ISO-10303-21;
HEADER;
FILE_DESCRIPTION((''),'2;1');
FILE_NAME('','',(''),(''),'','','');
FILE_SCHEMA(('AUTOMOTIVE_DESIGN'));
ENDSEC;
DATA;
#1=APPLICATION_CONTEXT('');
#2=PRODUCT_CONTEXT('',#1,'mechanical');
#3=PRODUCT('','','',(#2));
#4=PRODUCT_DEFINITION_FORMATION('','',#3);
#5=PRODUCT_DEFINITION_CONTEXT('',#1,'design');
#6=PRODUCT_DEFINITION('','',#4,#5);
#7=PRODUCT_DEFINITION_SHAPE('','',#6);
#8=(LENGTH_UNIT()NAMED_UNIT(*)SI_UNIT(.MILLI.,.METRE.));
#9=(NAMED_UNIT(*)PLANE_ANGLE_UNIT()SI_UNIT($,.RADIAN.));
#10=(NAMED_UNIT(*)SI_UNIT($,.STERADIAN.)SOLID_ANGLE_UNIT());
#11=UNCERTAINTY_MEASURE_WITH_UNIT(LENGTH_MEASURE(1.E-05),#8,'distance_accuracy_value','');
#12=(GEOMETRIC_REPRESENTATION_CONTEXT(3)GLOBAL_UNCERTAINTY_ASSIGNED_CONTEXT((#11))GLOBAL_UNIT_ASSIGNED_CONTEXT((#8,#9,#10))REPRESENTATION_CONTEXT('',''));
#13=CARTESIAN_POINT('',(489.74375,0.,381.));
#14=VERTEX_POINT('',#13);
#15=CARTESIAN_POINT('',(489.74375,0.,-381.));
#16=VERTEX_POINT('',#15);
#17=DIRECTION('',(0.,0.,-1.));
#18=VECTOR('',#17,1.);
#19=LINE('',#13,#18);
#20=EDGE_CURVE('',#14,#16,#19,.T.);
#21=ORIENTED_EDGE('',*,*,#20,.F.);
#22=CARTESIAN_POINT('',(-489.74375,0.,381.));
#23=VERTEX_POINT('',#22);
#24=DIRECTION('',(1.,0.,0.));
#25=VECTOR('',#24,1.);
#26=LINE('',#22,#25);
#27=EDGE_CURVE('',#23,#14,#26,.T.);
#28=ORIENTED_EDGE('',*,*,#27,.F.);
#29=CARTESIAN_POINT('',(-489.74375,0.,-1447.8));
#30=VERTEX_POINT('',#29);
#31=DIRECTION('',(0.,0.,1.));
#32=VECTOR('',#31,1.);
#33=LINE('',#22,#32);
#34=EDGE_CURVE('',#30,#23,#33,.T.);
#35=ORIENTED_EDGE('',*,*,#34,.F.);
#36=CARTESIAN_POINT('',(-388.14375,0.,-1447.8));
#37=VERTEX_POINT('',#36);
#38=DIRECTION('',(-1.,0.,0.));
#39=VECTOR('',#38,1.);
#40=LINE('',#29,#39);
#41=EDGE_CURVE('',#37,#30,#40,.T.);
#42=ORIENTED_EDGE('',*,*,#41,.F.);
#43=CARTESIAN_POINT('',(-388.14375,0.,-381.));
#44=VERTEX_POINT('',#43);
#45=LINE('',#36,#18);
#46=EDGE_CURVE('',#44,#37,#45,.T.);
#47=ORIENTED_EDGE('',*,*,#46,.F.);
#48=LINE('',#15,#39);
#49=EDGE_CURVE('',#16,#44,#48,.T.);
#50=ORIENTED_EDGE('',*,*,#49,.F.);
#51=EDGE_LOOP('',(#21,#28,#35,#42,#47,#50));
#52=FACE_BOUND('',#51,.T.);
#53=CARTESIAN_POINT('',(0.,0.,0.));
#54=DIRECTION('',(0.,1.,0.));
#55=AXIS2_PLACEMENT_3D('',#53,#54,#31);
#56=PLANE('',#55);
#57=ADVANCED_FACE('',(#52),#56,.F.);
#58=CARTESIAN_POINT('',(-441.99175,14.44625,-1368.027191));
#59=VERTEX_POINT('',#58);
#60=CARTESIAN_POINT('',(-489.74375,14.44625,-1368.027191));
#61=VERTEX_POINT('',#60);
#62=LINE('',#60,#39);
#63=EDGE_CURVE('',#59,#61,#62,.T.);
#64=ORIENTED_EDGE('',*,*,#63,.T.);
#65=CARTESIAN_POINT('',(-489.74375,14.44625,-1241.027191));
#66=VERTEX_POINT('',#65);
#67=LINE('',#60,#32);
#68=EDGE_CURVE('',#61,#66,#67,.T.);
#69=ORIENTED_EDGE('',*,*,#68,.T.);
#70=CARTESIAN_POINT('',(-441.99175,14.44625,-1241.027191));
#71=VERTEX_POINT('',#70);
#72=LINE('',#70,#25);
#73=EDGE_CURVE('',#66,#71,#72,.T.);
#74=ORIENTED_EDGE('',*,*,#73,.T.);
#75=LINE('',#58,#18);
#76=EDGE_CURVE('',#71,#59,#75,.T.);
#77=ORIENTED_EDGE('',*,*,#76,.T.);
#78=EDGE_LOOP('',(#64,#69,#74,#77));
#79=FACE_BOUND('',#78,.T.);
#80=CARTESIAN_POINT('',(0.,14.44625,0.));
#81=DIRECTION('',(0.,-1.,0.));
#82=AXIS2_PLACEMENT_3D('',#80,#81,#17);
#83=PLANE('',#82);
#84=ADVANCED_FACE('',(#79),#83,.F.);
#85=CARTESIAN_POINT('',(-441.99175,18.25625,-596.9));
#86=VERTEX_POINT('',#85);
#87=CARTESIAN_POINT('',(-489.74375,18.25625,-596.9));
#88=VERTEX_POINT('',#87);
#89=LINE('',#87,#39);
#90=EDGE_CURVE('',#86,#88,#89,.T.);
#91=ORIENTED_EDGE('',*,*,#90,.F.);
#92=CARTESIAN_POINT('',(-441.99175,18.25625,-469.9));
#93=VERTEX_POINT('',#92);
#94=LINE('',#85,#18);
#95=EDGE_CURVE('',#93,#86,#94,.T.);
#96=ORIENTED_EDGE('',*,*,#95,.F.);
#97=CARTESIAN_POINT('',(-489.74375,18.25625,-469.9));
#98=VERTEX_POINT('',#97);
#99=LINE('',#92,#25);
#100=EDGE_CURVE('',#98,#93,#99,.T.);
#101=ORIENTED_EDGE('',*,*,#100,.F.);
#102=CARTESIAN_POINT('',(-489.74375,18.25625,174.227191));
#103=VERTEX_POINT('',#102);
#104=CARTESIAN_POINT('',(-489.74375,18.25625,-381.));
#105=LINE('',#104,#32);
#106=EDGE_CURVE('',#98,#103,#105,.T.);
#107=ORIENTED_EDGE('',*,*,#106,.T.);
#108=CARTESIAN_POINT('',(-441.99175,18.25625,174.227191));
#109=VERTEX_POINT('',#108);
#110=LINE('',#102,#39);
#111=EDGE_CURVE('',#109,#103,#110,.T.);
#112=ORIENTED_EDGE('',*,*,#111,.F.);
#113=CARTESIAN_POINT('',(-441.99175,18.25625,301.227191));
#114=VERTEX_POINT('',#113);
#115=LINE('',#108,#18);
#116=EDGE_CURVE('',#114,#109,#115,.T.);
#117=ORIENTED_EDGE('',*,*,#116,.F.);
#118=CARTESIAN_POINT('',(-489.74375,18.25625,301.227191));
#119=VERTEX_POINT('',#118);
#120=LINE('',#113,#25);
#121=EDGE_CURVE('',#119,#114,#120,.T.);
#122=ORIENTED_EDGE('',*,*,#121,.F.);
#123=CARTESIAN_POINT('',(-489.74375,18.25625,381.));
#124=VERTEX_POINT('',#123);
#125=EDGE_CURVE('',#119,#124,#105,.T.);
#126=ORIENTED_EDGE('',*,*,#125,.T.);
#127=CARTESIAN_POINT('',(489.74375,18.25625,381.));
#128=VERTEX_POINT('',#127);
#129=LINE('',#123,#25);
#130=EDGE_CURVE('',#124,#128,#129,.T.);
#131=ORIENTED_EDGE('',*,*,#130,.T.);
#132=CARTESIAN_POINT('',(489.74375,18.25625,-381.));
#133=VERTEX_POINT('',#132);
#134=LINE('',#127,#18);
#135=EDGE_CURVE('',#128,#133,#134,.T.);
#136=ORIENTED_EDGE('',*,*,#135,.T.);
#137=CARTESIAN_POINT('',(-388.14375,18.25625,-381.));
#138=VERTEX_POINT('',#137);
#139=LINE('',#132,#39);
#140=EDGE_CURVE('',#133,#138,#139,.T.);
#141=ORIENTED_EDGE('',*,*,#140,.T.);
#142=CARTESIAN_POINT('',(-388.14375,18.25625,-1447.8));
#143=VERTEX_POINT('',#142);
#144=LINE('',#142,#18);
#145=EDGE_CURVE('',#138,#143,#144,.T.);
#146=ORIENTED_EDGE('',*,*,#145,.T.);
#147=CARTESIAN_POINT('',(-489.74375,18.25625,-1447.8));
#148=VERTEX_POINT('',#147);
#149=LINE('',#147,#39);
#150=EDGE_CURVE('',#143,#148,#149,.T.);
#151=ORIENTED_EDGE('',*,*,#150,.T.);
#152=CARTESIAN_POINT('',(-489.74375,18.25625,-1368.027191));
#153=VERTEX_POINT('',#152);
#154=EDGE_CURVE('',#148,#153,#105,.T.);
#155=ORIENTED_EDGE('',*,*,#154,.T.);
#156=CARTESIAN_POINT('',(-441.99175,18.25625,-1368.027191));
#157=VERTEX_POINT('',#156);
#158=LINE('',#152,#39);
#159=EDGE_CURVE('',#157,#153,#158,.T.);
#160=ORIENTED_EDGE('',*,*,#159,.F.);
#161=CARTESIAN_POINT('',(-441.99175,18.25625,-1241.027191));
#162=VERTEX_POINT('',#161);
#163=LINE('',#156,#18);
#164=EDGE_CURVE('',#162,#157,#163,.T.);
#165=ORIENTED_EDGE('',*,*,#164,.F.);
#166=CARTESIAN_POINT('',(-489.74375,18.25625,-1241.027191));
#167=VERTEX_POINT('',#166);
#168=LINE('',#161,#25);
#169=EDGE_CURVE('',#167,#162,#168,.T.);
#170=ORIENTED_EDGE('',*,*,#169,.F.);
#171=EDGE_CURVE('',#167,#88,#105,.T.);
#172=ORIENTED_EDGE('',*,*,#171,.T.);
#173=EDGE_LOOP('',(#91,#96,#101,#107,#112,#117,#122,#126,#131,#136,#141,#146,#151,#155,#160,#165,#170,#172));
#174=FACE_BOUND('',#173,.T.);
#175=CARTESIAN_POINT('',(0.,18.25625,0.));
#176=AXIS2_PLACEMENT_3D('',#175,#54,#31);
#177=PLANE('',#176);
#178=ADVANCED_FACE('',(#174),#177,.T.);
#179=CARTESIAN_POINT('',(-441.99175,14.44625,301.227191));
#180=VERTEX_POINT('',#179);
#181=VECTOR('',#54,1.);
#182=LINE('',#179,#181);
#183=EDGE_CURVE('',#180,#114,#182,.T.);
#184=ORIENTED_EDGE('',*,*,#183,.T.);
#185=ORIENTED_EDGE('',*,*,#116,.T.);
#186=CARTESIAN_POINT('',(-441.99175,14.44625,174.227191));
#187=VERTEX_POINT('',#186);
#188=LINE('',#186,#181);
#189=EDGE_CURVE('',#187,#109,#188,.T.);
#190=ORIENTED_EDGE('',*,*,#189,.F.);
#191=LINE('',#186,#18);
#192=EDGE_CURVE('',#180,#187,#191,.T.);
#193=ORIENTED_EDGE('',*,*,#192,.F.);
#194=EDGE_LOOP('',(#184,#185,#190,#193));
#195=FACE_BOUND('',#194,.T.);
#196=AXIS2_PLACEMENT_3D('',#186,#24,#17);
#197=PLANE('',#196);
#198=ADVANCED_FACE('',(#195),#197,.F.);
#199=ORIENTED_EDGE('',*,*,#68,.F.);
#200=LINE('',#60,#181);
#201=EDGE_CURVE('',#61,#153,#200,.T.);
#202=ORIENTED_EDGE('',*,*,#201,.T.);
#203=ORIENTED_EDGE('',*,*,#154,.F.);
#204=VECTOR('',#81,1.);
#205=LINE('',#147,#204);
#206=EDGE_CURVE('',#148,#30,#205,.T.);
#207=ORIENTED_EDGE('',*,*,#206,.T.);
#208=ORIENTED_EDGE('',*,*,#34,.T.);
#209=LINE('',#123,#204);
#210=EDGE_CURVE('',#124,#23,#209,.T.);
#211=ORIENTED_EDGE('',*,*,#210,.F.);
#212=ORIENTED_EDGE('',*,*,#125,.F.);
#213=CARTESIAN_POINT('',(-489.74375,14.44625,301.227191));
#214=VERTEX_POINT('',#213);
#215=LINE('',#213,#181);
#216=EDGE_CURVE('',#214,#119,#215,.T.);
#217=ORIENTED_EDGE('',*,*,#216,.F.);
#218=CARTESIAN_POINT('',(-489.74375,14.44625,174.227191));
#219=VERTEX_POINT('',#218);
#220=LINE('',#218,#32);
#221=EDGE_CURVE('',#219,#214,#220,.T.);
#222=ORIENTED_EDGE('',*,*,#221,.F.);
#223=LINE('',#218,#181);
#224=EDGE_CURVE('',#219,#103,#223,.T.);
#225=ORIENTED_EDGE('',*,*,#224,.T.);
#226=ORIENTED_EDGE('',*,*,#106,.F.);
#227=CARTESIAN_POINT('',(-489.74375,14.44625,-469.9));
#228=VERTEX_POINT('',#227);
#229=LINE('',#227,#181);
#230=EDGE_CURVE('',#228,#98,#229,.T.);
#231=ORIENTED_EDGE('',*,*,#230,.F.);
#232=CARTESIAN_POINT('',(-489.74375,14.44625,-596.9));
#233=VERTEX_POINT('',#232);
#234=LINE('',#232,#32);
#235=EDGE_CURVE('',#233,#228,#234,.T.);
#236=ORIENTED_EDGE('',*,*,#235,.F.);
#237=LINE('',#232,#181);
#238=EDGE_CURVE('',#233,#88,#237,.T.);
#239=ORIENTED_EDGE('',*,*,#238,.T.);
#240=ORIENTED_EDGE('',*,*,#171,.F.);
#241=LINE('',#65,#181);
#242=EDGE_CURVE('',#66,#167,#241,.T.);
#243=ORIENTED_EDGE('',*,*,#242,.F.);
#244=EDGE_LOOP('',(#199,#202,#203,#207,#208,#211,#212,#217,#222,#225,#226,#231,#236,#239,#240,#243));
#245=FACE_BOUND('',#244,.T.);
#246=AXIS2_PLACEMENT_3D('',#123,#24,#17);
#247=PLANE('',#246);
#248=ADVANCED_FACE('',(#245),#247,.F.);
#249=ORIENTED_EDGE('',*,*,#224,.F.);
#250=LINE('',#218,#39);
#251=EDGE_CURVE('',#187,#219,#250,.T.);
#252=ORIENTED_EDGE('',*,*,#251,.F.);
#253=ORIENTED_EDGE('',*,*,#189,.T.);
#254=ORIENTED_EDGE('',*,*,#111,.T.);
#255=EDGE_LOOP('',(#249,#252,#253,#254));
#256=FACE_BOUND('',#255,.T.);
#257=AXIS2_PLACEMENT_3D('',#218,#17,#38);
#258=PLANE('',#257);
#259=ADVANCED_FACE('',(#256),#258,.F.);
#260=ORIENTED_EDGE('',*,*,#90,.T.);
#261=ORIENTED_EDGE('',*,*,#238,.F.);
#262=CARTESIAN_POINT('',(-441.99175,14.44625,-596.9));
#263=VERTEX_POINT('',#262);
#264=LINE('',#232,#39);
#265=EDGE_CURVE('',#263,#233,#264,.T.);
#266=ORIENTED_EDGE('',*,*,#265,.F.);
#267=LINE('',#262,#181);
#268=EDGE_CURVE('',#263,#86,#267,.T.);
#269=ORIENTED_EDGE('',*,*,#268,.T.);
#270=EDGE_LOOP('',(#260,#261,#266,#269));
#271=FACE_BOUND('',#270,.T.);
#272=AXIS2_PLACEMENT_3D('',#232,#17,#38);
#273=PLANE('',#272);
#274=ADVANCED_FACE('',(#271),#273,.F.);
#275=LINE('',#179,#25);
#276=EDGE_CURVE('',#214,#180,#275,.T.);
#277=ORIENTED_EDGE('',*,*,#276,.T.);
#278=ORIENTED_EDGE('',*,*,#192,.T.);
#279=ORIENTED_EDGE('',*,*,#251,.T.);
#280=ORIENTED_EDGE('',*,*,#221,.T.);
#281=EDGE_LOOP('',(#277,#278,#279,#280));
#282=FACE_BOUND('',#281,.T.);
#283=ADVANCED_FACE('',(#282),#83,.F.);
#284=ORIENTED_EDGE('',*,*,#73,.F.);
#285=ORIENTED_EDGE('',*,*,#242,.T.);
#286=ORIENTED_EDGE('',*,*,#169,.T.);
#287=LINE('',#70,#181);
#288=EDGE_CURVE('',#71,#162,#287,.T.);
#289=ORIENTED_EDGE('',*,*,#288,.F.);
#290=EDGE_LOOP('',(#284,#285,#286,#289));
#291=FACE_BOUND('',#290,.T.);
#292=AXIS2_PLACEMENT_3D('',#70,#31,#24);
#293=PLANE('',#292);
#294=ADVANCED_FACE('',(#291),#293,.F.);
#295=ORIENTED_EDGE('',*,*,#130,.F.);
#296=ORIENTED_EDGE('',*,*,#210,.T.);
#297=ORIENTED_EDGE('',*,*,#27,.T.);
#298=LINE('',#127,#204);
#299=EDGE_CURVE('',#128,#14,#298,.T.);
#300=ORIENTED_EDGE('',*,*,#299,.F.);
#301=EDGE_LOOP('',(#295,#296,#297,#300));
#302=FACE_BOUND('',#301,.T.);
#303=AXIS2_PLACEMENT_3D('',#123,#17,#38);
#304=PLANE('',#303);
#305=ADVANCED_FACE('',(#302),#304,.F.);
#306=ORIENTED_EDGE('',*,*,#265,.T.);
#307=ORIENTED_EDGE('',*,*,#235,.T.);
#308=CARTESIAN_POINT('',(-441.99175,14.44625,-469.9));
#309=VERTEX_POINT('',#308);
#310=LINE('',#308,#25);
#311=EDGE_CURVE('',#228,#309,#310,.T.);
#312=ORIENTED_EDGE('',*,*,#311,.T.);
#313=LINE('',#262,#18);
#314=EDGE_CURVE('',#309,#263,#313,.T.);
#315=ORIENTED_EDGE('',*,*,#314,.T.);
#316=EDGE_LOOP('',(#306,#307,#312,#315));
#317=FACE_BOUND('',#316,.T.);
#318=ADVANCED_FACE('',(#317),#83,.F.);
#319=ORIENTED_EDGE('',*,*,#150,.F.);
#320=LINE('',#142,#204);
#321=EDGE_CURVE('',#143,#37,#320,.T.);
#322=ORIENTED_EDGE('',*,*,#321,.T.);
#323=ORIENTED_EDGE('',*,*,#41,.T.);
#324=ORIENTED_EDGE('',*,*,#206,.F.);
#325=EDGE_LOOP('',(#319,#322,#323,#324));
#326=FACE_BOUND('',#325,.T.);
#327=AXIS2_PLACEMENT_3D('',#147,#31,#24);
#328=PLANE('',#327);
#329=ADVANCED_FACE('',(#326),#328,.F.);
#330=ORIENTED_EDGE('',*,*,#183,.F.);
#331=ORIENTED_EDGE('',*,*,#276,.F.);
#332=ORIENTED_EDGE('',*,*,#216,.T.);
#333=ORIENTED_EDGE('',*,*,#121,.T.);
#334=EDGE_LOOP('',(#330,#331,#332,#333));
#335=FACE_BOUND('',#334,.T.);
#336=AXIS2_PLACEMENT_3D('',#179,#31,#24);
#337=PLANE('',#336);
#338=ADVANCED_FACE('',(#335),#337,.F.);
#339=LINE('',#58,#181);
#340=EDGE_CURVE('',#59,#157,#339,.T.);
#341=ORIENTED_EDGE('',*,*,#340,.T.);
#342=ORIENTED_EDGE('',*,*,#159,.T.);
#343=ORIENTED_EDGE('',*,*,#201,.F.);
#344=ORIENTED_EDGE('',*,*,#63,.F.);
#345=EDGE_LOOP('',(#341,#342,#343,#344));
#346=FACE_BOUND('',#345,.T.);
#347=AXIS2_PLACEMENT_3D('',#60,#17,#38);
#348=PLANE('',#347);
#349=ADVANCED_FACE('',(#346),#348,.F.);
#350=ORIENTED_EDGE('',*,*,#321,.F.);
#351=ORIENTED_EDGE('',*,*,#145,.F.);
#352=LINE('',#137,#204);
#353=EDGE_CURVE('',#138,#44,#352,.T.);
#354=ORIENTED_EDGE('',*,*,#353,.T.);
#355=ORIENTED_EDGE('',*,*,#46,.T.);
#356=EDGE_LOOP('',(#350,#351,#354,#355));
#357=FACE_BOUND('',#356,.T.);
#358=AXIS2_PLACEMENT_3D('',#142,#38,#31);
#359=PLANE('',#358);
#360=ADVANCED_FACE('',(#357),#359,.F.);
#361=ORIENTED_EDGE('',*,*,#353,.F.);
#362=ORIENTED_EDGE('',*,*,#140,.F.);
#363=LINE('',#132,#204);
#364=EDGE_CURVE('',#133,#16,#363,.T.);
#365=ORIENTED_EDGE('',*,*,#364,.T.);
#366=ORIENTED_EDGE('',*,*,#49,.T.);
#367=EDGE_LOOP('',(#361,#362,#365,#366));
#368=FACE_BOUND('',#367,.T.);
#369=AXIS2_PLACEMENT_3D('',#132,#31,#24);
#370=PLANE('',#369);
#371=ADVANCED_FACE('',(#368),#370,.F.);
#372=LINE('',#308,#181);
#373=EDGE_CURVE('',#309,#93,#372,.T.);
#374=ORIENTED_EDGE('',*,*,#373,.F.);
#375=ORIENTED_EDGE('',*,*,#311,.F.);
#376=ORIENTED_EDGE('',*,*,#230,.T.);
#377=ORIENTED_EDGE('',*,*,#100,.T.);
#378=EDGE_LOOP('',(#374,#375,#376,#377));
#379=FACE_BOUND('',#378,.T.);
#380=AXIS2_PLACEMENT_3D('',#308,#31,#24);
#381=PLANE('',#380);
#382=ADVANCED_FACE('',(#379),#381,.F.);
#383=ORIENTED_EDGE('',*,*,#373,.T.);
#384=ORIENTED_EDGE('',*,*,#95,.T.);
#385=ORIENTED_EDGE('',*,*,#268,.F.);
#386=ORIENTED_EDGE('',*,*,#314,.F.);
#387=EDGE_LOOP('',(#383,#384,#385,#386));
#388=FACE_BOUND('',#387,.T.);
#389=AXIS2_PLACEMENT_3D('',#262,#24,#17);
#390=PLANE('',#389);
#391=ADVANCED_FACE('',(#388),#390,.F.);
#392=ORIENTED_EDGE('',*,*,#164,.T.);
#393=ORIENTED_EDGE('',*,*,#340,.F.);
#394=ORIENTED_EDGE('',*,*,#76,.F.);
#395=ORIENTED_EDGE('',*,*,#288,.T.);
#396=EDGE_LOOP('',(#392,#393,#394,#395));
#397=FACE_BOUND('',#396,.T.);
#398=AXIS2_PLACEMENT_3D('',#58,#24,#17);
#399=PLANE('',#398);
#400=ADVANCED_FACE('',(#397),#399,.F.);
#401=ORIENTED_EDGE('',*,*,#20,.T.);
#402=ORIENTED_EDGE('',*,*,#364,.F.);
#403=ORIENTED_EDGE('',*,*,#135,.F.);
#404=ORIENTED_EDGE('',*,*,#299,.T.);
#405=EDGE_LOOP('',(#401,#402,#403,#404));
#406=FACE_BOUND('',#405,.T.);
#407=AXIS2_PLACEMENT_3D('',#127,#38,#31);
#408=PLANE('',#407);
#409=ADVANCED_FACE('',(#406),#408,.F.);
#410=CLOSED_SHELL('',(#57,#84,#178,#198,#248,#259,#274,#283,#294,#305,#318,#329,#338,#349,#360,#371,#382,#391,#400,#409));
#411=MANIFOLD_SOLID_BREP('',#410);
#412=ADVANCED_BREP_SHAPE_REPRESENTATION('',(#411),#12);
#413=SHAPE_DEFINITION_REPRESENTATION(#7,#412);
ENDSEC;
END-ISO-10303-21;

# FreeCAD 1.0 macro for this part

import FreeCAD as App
import Part
import Sketcher

V = App.Vector
Q = App.Units.Quantity

doc = App.newDocument("Part")
body = doc.addObject("PartDesign::Body", "Body")

sketch1 = body.newObject("Sketcher::SketchObject", "Sketch")
sketch1.AttachmentSupport = (doc.getObject("XZ_Plane"), [""])
sketch1.MapMode = "FlatFace"
sketch1.addGeometry([
    Part.LineSegment(V(-489.74375, -1447.8, 0), V(-489.74375, 381, 0)),
    Part.LineSegment(V(-489.74375, 381, 0), V(489.74375, 381, 0)),
    Part.LineSegment(V(489.74375, 381, 0), V(489.74375, -381, 0)),
    Part.LineSegment(V(489.74375, -381, 0), V(-388.14375, -381, 0)),
    Part.LineSegment(V(-388.14375, -381, 0), V(-388.14375, -1447.8, 0)),
    Part.LineSegment(V(-388.14375, -1447.8, 0), V(-489.74375, -1447.8, 0)),
], False)
sketch1.addConstraint([
    Sketcher.Constraint("Coincident", 0, 2, 1, 1),
    Sketcher.Constraint("Coincident", 1, 2, 2, 1),
    Sketcher.Constraint("Coincident", 2, 2, 3, 1),
    Sketcher.Constraint("Coincident", 3, 2, 4, 1),
    Sketcher.Constraint("Coincident", 4, 2, 5, 1),
    Sketcher.Constraint("Coincident", 5, 2, 0, 1),
    Sketcher.Constraint("Vertical", 0),
    Sketcher.Constraint("Horizontal", 1),
    Sketcher.Constraint("Vertical", 2),
    Sketcher.Constraint("Horizontal", 3),
    Sketcher.Constraint("Vertical", 4),
    Sketcher.Constraint("Horizontal", 5),
    Sketcher.Constraint("Symmetric", 0, 2, 2, 2, -1, 1),
    Sketcher.Constraint("DistanceX", 5, 2, 5, 1, Q("4 in")),
    Sketcher.Constraint("DistanceY", 0, 1, 0, 2, Q("72 in")),
    Sketcher.Constraint("DistanceY", 2, 2, 2, 1, Q("30 in")),
    Sketcher.Constraint("DistanceX", 1, 1, 1, 2, Q("38.5625 in")),
])
pad1 = body.newObject("PartDesign::Pad", "Pad")
pad1.Profile = sketch1
pad1.Length = Q("0.71875 in")
pad1.Reversed = True

sketch2 = body.newObject("Sketcher::SketchObject", "Sketch001")
sketch2.AttachmentSupport = (doc.getObject("XZ_Plane"), [""])
sketch2.MapMode = "FlatFace"
sketch2.AttachmentOffset = App.Placement(V(0, 0, -0.71875 * 25.4), App.Rotation())
sketch2.addGeometry([
    Part.LineSegment(V(-489.74375, -1368.027191, 0), V(-489.74375, -1241.027191, 0)),
    Part.LineSegment(V(-489.74375, -1241.027191, 0), V(-441.99175, -1241.027191, 0)),
    Part.LineSegment(V(-441.99175, -1241.027191, 0), V(-441.99175, -1368.027191, 0)),
    Part.LineSegment(V(-441.99175, -1368.027191, 0), V(-489.74375, -1368.027191, 0)),
    Part.LineSegment(V(-489.74375, -596.9, 0), V(-489.74375, -469.9, 0)),
    Part.LineSegment(V(-489.74375, -469.9, 0), V(-441.99175, -469.9, 0)),
    Part.LineSegment(V(-441.99175, -469.9, 0), V(-441.99175, -596.9, 0)),
    Part.LineSegment(V(-441.99175, -596.9, 0), V(-489.74375, -596.9, 0)),
    Part.LineSegment(V(-489.74375, 174.227191, 0), V(-489.74375, 301.227191, 0)),
    Part.LineSegment(V(-489.74375, 301.227191, 0), V(-441.99175, 301.227191, 0)),
    Part.LineSegment(V(-441.99175, 301.227191, 0), V(-441.99175, 174.227191, 0)),
    Part.LineSegment(V(-441.99175, 174.227191, 0), V(-489.74375, 174.227191, 0)),
], False)
sketch2.addConstraint([
    Sketcher.Constraint("Coincident", 0, 2, 1, 1),
    Sketcher.Constraint("Coincident", 1, 2, 2, 1),
    Sketcher.Constraint("Coincident", 2, 2, 3, 1),
    Sketcher.Constraint("Coincident", 3, 2, 0, 1),
    Sketcher.Constraint("Coincident", 4, 2, 5, 1),
    Sketcher.Constraint("Coincident", 5, 2, 6, 1),
    Sketcher.Constraint("Coincident", 6, 2, 7, 1),
    Sketcher.Constraint("Coincident", 7, 2, 4, 1),
    Sketcher.Constraint("Coincident", 8, 2, 9, 1),
    Sketcher.Constraint("Coincident", 9, 2, 10, 1),
    Sketcher.Constraint("Coincident", 10, 2, 11, 1),
    Sketcher.Constraint("Coincident", 11, 2, 8, 1),
    Sketcher.Constraint("Vertical", 0),
    Sketcher.Constraint("Horizontal", 1),
    Sketcher.Constraint("Vertical", 2),
    Sketcher.Constraint("Horizontal", 3),
    Sketcher.Constraint("Vertical", 4),
    Sketcher.Constraint("Horizontal", 5),
    Sketcher.Constraint("Vertical", 6),
    Sketcher.Constraint("Horizontal", 7),
    Sketcher.Constraint("Vertical", 8),
    Sketcher.Constraint("Horizontal", 9),
    Sketcher.Constraint("Vertical", 10),
    Sketcher.Constraint("Horizontal", 11),
    Sketcher.Constraint("Vertical", 3, 2, 4, 2),
    Sketcher.Constraint("Vertical", 2, 2, 5, 2),
    Sketcher.Constraint("Vertical", 7, 2, 8, 2),
    Sketcher.Constraint("Vertical", 6, 2, 9, 2),
    Sketcher.Constraint("Equal", 2, 4),
    Sketcher.Constraint("Equal", 6, 8),
    Sketcher.Constraint("DistanceY", 0, 1, 0, 2, Q("5 in")),
    Sketcher.Constraint("DistanceX", 1, 1, 1, 2, Q("1.88 in")),
    Sketcher.Constraint("DistanceY", 4, 2, -1, 1, Q("18.5 in")),
    Sketcher.Constraint("DistanceX", 0, 2, -1, 1, Q("19.28125 in")),
    Sketcher.Constraint("DistanceY", 0, 2, -1, 1, 1241.027191),
    Sketcher.Constraint("DistanceY", -1, 1, 8, 2, 301.227191),
])
pocket1 = body.newObject("PartDesign::Pocket", "Pocket")
pocket1.Profile = sketch2
pocket1.Length = Q("0.15 in")
pocket1.Reversed = True

doc.recompute()
